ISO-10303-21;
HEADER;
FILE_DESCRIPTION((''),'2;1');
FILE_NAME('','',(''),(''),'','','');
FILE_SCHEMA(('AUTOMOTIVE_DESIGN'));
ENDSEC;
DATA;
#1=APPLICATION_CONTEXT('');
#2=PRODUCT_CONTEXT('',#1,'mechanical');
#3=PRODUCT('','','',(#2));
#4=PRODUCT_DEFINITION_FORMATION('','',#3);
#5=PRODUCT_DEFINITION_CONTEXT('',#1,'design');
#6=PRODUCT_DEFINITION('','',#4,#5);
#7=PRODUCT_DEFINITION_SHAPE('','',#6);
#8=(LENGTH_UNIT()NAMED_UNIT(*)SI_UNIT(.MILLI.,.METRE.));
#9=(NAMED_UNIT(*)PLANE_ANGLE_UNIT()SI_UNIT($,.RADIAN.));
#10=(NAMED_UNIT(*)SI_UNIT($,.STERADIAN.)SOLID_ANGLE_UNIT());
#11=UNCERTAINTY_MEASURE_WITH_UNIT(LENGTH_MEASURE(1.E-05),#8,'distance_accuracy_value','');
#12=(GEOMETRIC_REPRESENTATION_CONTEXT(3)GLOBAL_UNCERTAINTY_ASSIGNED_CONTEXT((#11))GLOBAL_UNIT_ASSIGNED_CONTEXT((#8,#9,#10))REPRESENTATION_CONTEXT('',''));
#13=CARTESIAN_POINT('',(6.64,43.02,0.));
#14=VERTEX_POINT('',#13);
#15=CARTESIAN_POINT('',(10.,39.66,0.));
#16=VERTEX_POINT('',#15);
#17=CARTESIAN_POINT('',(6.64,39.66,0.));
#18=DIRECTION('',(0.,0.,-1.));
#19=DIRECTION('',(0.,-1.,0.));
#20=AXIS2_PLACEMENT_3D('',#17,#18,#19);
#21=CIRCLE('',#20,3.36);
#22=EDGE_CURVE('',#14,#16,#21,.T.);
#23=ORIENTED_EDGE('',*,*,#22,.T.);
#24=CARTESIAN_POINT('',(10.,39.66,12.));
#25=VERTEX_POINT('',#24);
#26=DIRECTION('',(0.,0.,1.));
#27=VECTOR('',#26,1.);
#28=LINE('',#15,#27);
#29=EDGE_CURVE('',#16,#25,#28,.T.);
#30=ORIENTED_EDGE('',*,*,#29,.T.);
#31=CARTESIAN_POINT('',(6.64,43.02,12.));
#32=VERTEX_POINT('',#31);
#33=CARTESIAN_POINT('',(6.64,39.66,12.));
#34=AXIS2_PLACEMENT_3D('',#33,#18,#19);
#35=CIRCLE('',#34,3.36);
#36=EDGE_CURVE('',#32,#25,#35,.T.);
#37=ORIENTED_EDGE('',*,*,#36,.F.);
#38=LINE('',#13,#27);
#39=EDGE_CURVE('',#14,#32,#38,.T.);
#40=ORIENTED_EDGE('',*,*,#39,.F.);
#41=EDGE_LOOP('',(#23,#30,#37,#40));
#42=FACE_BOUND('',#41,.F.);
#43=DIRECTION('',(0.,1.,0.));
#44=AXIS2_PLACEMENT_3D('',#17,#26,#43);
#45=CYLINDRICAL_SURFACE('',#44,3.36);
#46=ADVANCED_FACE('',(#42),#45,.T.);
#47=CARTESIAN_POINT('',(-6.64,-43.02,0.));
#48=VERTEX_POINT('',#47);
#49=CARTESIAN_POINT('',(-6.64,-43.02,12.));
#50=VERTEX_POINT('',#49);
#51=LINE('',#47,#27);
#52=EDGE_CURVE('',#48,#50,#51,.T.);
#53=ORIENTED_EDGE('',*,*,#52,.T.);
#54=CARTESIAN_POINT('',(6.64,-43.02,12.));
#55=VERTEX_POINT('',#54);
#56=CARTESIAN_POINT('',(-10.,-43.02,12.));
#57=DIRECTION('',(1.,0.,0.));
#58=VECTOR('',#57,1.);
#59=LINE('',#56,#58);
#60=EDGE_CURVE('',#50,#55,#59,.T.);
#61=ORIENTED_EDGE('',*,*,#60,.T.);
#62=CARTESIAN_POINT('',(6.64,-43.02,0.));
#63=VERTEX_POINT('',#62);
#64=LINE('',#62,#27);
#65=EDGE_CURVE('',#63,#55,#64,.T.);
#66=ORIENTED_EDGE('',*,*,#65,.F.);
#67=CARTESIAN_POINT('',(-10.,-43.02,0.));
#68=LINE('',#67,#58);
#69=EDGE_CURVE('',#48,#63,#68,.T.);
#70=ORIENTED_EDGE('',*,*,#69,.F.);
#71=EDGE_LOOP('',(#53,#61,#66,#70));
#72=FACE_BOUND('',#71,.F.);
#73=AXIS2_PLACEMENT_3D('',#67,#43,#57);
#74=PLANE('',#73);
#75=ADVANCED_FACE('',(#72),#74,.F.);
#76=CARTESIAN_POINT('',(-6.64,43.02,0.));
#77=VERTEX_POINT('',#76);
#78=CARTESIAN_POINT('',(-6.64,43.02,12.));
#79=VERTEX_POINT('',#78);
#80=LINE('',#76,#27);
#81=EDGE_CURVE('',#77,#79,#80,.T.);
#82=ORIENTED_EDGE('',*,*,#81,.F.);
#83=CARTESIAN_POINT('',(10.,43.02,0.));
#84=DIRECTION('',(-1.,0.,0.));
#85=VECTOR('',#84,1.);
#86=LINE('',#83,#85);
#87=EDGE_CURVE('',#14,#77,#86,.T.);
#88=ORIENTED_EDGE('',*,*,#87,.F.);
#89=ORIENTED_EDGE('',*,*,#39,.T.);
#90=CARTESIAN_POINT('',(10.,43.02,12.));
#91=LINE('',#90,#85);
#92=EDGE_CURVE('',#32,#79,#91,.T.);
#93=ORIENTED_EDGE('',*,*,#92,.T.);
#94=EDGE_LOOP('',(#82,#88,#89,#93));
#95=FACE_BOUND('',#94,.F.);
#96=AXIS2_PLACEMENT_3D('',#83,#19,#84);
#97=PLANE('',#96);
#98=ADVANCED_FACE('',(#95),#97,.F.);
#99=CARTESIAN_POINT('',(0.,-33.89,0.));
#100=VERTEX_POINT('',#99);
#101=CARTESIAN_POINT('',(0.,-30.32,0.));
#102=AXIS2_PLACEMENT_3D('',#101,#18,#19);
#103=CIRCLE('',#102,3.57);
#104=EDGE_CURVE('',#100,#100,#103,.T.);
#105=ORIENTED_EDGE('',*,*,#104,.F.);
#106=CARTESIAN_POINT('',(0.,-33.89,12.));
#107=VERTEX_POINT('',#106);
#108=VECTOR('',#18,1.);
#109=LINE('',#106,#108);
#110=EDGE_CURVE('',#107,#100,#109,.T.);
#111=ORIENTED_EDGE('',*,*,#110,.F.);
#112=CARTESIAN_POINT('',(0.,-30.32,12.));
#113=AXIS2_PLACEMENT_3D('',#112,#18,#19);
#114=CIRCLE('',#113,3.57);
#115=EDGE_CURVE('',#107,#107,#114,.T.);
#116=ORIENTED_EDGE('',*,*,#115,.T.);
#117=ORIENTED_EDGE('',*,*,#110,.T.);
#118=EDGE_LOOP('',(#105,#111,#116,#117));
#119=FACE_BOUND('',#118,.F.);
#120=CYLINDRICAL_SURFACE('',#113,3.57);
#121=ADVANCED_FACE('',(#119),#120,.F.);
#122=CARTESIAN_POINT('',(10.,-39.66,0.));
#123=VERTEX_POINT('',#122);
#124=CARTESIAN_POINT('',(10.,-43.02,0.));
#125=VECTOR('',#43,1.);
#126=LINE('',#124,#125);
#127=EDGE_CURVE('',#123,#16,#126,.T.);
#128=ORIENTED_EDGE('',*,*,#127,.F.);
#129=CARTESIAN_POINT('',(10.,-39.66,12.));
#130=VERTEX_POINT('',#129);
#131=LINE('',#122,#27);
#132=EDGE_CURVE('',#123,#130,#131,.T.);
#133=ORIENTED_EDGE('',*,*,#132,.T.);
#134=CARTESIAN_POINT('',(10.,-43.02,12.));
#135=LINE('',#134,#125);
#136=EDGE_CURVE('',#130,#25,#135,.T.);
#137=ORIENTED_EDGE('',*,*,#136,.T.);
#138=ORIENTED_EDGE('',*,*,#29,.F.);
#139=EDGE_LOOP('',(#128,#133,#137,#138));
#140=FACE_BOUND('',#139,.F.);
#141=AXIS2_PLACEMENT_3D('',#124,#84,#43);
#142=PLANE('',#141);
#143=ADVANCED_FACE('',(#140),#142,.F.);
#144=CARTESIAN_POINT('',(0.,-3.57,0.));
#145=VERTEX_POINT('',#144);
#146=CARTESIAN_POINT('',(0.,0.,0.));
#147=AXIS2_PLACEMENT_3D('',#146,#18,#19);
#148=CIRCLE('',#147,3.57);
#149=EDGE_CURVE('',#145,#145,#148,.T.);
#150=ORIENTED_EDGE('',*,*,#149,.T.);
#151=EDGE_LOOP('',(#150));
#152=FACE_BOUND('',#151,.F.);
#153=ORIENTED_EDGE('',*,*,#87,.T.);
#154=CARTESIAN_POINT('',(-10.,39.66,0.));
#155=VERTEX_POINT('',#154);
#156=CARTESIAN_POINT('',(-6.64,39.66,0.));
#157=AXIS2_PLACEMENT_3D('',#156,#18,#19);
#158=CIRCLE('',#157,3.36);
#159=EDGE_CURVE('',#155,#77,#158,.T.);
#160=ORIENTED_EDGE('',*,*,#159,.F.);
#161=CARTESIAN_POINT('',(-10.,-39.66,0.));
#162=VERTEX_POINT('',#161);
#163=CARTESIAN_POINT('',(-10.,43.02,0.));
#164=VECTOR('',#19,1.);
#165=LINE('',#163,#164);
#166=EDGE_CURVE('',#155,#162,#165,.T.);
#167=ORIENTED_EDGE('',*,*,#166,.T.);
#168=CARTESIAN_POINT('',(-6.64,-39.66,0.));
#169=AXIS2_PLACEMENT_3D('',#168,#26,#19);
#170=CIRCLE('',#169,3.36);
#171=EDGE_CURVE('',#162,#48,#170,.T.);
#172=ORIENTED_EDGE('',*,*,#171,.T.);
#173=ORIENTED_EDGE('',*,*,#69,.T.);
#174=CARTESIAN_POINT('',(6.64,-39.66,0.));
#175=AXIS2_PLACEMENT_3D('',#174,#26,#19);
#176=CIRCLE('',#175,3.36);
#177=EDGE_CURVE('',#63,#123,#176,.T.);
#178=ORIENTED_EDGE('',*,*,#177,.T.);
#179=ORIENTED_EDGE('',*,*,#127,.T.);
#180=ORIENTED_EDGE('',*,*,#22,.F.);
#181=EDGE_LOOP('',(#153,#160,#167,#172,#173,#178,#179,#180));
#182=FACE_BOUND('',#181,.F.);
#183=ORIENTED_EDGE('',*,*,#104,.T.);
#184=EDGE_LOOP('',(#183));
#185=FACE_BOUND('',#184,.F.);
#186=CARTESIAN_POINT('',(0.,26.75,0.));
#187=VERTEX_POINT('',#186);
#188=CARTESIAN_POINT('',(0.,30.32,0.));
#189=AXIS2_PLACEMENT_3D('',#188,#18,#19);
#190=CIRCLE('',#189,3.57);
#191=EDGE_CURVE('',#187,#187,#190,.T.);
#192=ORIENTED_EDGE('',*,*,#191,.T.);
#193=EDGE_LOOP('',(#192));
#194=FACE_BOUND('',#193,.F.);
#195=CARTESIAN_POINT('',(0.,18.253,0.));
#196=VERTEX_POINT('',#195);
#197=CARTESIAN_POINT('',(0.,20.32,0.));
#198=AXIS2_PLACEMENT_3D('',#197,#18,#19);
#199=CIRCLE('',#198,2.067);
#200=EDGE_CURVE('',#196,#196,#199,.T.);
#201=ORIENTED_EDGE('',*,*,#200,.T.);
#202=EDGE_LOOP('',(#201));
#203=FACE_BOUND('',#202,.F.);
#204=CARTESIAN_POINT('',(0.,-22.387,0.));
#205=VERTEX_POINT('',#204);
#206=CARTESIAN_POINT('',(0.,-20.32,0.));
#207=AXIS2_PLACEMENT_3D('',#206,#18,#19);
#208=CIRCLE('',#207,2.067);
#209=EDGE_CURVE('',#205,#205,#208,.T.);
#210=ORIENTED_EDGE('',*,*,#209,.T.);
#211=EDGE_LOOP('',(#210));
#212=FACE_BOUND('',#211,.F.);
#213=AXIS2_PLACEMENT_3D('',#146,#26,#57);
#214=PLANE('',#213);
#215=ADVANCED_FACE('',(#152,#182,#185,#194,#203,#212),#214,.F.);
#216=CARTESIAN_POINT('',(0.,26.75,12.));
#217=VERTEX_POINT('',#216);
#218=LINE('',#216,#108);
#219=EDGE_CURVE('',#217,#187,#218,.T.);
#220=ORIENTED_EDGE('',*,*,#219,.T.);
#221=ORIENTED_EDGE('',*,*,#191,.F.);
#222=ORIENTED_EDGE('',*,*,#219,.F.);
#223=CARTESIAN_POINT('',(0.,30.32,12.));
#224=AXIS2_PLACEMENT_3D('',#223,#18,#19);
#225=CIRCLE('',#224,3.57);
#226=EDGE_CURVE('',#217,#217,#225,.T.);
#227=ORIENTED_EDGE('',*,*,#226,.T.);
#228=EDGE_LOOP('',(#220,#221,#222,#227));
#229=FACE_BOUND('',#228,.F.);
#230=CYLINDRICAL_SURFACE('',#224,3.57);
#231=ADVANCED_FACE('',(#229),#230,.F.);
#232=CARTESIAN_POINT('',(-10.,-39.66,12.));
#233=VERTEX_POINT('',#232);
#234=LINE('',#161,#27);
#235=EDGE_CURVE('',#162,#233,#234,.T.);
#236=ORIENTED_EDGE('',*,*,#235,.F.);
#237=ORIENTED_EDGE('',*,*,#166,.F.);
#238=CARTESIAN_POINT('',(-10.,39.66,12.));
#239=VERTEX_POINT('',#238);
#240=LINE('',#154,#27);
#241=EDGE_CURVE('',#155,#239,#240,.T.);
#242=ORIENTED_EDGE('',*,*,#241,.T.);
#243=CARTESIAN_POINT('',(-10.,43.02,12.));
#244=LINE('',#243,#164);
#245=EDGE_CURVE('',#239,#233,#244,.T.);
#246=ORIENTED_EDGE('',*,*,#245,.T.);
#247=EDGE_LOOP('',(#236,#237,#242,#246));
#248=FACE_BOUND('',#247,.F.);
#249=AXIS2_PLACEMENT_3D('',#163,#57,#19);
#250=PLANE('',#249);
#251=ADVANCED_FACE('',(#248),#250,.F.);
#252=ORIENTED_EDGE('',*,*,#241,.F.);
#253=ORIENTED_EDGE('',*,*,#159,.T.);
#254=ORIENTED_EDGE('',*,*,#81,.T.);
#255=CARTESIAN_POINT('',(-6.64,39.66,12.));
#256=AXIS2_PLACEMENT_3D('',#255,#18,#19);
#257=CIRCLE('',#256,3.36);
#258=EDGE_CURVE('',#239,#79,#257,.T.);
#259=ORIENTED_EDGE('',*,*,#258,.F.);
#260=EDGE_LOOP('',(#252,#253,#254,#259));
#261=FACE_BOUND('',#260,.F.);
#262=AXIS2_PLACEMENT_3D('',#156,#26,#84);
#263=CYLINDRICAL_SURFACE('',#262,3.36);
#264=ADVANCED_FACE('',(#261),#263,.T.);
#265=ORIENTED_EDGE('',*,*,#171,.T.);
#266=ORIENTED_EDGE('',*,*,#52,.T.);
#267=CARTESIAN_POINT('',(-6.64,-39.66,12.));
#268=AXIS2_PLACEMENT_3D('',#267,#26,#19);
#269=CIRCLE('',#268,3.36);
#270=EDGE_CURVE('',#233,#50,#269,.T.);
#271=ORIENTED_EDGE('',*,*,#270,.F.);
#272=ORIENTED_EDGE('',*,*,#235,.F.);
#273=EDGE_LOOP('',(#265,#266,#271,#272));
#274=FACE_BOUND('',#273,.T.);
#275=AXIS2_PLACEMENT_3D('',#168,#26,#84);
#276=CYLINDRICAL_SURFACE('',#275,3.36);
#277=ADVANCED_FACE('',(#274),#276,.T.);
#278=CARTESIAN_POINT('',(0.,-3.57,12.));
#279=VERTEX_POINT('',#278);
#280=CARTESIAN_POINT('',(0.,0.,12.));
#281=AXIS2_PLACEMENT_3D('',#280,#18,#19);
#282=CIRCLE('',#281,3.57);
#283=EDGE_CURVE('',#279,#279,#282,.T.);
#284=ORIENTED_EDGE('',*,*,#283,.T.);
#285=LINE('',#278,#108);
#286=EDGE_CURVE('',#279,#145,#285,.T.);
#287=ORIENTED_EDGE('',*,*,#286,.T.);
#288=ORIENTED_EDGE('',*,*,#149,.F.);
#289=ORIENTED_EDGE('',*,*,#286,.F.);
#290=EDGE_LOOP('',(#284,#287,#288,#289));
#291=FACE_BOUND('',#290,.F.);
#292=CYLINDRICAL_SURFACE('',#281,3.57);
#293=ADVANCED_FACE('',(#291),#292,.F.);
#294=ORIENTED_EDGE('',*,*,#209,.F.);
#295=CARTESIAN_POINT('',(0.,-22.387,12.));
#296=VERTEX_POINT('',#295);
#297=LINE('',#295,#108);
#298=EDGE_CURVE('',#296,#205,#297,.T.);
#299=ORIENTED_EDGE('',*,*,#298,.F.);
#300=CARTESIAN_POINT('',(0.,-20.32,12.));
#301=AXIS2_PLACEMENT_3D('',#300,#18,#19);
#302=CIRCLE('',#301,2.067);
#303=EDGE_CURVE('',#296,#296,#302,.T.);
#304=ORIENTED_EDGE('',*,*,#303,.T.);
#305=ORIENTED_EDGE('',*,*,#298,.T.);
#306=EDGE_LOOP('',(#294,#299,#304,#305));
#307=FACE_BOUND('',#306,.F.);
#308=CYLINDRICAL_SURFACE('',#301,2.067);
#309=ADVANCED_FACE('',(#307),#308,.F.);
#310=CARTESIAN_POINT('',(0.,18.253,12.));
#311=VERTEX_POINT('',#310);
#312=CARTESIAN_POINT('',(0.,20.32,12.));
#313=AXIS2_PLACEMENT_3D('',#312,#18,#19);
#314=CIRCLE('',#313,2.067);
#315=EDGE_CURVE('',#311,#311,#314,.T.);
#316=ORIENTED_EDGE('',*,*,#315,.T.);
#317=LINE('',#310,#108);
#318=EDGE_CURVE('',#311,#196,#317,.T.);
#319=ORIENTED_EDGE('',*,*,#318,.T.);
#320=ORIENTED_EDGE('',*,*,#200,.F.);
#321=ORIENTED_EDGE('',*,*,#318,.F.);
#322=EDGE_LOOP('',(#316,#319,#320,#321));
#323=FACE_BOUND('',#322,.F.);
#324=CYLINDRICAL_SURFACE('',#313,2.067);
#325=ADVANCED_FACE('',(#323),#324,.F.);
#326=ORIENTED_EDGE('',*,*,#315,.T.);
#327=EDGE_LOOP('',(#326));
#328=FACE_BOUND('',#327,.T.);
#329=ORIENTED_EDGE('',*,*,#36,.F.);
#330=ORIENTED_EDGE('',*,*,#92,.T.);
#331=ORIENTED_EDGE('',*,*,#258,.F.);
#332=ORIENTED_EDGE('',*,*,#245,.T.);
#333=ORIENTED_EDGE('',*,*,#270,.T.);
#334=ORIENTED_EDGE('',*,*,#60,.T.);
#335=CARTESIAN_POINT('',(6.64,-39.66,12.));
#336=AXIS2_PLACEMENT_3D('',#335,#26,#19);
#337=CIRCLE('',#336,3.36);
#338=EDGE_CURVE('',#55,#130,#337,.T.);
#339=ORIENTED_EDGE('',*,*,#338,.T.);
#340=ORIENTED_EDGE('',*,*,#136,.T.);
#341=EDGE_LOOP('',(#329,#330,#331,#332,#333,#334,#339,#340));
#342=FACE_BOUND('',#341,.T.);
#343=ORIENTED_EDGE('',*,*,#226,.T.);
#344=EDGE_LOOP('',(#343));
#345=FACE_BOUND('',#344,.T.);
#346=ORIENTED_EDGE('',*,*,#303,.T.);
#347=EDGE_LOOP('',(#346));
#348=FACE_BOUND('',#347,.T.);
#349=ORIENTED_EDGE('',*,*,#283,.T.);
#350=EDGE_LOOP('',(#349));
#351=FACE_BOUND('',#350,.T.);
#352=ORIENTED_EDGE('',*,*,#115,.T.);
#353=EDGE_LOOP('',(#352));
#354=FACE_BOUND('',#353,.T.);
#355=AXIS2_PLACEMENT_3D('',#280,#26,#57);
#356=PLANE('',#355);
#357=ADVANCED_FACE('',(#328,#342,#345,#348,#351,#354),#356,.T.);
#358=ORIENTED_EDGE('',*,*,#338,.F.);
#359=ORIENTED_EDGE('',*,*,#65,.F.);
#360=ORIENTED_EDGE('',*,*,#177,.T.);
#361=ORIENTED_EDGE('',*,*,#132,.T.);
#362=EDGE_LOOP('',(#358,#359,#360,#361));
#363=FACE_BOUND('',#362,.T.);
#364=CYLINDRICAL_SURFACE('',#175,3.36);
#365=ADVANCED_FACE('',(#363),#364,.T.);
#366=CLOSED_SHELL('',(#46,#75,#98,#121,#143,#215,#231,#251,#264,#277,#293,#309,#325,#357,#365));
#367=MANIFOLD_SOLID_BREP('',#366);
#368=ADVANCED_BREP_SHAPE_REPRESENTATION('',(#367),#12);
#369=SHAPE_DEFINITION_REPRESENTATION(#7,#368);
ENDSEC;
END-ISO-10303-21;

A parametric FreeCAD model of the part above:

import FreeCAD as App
import Part
import Sketcher
Q = App.Units.Quantity


def edges_at(feature, points):
    """Names of the edges that pass closest to the given points."""
    edges = feature.Shape.Edges
    near = lambda p: min(range(len(edges)), key=lambda i: edges[i].distToShape(Part.Vertex(*p))[0])
    return sorted({f"Edge{near(p) + 1}" for p in points})


def add_polygon(sketch, points):
    """Adds a closed chain of lines whose ends are joined by coincident constraints."""
    first, n = sketch.GeometryCount, len(points)
    for a, b in zip(points, points[1:] + points[:1]):
        sketch.addGeometry(Part.LineSegment(App.Vector(*a, 0), App.Vector(*b, 0)), False)
    for i in range(n):
        sketch.addConstraint(Sketcher.Constraint("Coincident", first + i, 2, first + (i + 1) % n, 1))

doc = App.newDocument("Part")
body = doc.addObject("PartDesign::Body", "Body")

# Sketch on XY plane
sketch1 = body.newObject("Sketcher::SketchObject", "Sketch")
sketch1.AttachmentSupport = (doc.getObject("XY_Plane"), [""])
sketch1.MapMode = "FlatFace"
add_polygon(sketch1, [(-10, 43.02), (-10, -43.02), (10, -43.02), (10, 43.02)])  # lines 0-3
sketch1.addConstraint(Sketcher.Constraint("Vertical", 0))
sketch1.addConstraint(Sketcher.Constraint("Horizontal", 1))
sketch1.addConstraint(Sketcher.Constraint("Vertical", 2))
sketch1.addConstraint(Sketcher.Constraint("Horizontal", 3))
sketch1.addConstraint(Sketcher.Constraint("Symmetric", 0, 2, 2, 2, -1, 1))
sketch1.addConstraint(Sketcher.Constraint("DistanceX", 1, 1, 1, 2, Q("20 mm")))
sketch1.addConstraint(Sketcher.Constraint("DistanceY", 0, 2, 0, 1, Q("86.04 mm")))
pad1 = body.newObject("PartDesign::Pad", "Pad")
pad1.Profile = sketch1
pad1.Length = 12

# Sketch on XY plane
sketch2 = body.newObject("Sketcher::SketchObject", "Sketch001")
sketch2.AttachmentSupport = (doc.getObject("XY_Plane"), [""])
sketch2.MapMode = "FlatFace"
sketch2.AttachmentOffset = App.Placement(App.Vector(0, 0, 12), App.Rotation())
sketch2.addGeometry(Part.Circle(App.Vector(0, 0, 0), App.Vector(0, 0, 1), 3.57), False)
sketch2.addGeometry(Part.Circle(App.Vector(0, 30.32, 0), App.Vector(0, 0, 1), 3.57), False)
sketch2.addGeometry(Part.Circle(App.Vector(0, -30.32, 0), App.Vector(0, 0, 1), 3.57), False)
sketch2.addConstraint(Sketcher.Constraint("Coincident", 0, 3, -1, 1))
sketch2.addConstraint(Sketcher.Constraint("Equal", 0, 1))
sketch2.addConstraint(Sketcher.Constraint("Equal", 1, 2))
sketch2.addConstraint(Sketcher.Constraint("Symmetric", 1, 3, 2, 3, -1, 1))
sketch2.addConstraint(Sketcher.Constraint("PointOnObject", 1, 3, -2))
sketch2.addConstraint(Sketcher.Constraint("Diameter", 0, Q("7.14 mm")))
sketch2.addConstraint(Sketcher.Constraint("DistanceY", -1, 1, 1, 3, Q("30.32 mm")))
doc.recompute()
hole = body.newObject("PartDesign::Hole", "Hole")
hole.Profile = sketch2
hole.ThreadType = "None"
hole.Diameter = 7.14
hole.DepthType = "ThroughAll"

# Sketch on XY plane
sketch3 = body.newObject("Sketcher::SketchObject", "Sketch002")
sketch3.AttachmentSupport = (doc.getObject("XY_Plane"), [""])
sketch3.MapMode = "FlatFace"
sketch3.AttachmentOffset = App.Placement(App.Vector(0, 0, 12), App.Rotation())
sketch3.addGeometry(Part.Circle(App.Vector(0, 20.32, 0), App.Vector(0, 0, 1), 2.067), False)
sketch3.addGeometry(Part.Circle(App.Vector(0, -20.32, 0), App.Vector(0, 0, 1), 2.067), False)
sketch3.addConstraint(Sketcher.Constraint("Equal", 0, 1))
sketch3.addConstraint(Sketcher.Constraint("Symmetric", 0, 3, 1, 3, -1, 1))
sketch3.addConstraint(Sketcher.Constraint("PointOnObject", 0, 3, -2))
sketch3.addConstraint(Sketcher.Constraint("Diameter", 0, Q("4.134 mm")))
sketch3.addConstraint(Sketcher.Constraint("DistanceY", -1, 1, 0, 3, Q("20.32 mm")))
doc.recompute()
hole2 = body.newObject("PartDesign::Hole", "Hole001")
hole2.Profile = sketch3
hole2.ThreadType = "None"
hole2.Diameter = 4.134
hole2.DepthType = "ThroughAll"
doc.recompute()

fillet = body.newObject("PartDesign::Fillet", "Fillet")
fillet.Base = (hole2, edges_at(hole2, [
    (10, 43.02, 6),
    (-10, 43.02, 6),
    (10, -43.02, 6),
    (-10, -43.02, 6),
]))
fillet.Radius = 3.36

doc.recompute()
